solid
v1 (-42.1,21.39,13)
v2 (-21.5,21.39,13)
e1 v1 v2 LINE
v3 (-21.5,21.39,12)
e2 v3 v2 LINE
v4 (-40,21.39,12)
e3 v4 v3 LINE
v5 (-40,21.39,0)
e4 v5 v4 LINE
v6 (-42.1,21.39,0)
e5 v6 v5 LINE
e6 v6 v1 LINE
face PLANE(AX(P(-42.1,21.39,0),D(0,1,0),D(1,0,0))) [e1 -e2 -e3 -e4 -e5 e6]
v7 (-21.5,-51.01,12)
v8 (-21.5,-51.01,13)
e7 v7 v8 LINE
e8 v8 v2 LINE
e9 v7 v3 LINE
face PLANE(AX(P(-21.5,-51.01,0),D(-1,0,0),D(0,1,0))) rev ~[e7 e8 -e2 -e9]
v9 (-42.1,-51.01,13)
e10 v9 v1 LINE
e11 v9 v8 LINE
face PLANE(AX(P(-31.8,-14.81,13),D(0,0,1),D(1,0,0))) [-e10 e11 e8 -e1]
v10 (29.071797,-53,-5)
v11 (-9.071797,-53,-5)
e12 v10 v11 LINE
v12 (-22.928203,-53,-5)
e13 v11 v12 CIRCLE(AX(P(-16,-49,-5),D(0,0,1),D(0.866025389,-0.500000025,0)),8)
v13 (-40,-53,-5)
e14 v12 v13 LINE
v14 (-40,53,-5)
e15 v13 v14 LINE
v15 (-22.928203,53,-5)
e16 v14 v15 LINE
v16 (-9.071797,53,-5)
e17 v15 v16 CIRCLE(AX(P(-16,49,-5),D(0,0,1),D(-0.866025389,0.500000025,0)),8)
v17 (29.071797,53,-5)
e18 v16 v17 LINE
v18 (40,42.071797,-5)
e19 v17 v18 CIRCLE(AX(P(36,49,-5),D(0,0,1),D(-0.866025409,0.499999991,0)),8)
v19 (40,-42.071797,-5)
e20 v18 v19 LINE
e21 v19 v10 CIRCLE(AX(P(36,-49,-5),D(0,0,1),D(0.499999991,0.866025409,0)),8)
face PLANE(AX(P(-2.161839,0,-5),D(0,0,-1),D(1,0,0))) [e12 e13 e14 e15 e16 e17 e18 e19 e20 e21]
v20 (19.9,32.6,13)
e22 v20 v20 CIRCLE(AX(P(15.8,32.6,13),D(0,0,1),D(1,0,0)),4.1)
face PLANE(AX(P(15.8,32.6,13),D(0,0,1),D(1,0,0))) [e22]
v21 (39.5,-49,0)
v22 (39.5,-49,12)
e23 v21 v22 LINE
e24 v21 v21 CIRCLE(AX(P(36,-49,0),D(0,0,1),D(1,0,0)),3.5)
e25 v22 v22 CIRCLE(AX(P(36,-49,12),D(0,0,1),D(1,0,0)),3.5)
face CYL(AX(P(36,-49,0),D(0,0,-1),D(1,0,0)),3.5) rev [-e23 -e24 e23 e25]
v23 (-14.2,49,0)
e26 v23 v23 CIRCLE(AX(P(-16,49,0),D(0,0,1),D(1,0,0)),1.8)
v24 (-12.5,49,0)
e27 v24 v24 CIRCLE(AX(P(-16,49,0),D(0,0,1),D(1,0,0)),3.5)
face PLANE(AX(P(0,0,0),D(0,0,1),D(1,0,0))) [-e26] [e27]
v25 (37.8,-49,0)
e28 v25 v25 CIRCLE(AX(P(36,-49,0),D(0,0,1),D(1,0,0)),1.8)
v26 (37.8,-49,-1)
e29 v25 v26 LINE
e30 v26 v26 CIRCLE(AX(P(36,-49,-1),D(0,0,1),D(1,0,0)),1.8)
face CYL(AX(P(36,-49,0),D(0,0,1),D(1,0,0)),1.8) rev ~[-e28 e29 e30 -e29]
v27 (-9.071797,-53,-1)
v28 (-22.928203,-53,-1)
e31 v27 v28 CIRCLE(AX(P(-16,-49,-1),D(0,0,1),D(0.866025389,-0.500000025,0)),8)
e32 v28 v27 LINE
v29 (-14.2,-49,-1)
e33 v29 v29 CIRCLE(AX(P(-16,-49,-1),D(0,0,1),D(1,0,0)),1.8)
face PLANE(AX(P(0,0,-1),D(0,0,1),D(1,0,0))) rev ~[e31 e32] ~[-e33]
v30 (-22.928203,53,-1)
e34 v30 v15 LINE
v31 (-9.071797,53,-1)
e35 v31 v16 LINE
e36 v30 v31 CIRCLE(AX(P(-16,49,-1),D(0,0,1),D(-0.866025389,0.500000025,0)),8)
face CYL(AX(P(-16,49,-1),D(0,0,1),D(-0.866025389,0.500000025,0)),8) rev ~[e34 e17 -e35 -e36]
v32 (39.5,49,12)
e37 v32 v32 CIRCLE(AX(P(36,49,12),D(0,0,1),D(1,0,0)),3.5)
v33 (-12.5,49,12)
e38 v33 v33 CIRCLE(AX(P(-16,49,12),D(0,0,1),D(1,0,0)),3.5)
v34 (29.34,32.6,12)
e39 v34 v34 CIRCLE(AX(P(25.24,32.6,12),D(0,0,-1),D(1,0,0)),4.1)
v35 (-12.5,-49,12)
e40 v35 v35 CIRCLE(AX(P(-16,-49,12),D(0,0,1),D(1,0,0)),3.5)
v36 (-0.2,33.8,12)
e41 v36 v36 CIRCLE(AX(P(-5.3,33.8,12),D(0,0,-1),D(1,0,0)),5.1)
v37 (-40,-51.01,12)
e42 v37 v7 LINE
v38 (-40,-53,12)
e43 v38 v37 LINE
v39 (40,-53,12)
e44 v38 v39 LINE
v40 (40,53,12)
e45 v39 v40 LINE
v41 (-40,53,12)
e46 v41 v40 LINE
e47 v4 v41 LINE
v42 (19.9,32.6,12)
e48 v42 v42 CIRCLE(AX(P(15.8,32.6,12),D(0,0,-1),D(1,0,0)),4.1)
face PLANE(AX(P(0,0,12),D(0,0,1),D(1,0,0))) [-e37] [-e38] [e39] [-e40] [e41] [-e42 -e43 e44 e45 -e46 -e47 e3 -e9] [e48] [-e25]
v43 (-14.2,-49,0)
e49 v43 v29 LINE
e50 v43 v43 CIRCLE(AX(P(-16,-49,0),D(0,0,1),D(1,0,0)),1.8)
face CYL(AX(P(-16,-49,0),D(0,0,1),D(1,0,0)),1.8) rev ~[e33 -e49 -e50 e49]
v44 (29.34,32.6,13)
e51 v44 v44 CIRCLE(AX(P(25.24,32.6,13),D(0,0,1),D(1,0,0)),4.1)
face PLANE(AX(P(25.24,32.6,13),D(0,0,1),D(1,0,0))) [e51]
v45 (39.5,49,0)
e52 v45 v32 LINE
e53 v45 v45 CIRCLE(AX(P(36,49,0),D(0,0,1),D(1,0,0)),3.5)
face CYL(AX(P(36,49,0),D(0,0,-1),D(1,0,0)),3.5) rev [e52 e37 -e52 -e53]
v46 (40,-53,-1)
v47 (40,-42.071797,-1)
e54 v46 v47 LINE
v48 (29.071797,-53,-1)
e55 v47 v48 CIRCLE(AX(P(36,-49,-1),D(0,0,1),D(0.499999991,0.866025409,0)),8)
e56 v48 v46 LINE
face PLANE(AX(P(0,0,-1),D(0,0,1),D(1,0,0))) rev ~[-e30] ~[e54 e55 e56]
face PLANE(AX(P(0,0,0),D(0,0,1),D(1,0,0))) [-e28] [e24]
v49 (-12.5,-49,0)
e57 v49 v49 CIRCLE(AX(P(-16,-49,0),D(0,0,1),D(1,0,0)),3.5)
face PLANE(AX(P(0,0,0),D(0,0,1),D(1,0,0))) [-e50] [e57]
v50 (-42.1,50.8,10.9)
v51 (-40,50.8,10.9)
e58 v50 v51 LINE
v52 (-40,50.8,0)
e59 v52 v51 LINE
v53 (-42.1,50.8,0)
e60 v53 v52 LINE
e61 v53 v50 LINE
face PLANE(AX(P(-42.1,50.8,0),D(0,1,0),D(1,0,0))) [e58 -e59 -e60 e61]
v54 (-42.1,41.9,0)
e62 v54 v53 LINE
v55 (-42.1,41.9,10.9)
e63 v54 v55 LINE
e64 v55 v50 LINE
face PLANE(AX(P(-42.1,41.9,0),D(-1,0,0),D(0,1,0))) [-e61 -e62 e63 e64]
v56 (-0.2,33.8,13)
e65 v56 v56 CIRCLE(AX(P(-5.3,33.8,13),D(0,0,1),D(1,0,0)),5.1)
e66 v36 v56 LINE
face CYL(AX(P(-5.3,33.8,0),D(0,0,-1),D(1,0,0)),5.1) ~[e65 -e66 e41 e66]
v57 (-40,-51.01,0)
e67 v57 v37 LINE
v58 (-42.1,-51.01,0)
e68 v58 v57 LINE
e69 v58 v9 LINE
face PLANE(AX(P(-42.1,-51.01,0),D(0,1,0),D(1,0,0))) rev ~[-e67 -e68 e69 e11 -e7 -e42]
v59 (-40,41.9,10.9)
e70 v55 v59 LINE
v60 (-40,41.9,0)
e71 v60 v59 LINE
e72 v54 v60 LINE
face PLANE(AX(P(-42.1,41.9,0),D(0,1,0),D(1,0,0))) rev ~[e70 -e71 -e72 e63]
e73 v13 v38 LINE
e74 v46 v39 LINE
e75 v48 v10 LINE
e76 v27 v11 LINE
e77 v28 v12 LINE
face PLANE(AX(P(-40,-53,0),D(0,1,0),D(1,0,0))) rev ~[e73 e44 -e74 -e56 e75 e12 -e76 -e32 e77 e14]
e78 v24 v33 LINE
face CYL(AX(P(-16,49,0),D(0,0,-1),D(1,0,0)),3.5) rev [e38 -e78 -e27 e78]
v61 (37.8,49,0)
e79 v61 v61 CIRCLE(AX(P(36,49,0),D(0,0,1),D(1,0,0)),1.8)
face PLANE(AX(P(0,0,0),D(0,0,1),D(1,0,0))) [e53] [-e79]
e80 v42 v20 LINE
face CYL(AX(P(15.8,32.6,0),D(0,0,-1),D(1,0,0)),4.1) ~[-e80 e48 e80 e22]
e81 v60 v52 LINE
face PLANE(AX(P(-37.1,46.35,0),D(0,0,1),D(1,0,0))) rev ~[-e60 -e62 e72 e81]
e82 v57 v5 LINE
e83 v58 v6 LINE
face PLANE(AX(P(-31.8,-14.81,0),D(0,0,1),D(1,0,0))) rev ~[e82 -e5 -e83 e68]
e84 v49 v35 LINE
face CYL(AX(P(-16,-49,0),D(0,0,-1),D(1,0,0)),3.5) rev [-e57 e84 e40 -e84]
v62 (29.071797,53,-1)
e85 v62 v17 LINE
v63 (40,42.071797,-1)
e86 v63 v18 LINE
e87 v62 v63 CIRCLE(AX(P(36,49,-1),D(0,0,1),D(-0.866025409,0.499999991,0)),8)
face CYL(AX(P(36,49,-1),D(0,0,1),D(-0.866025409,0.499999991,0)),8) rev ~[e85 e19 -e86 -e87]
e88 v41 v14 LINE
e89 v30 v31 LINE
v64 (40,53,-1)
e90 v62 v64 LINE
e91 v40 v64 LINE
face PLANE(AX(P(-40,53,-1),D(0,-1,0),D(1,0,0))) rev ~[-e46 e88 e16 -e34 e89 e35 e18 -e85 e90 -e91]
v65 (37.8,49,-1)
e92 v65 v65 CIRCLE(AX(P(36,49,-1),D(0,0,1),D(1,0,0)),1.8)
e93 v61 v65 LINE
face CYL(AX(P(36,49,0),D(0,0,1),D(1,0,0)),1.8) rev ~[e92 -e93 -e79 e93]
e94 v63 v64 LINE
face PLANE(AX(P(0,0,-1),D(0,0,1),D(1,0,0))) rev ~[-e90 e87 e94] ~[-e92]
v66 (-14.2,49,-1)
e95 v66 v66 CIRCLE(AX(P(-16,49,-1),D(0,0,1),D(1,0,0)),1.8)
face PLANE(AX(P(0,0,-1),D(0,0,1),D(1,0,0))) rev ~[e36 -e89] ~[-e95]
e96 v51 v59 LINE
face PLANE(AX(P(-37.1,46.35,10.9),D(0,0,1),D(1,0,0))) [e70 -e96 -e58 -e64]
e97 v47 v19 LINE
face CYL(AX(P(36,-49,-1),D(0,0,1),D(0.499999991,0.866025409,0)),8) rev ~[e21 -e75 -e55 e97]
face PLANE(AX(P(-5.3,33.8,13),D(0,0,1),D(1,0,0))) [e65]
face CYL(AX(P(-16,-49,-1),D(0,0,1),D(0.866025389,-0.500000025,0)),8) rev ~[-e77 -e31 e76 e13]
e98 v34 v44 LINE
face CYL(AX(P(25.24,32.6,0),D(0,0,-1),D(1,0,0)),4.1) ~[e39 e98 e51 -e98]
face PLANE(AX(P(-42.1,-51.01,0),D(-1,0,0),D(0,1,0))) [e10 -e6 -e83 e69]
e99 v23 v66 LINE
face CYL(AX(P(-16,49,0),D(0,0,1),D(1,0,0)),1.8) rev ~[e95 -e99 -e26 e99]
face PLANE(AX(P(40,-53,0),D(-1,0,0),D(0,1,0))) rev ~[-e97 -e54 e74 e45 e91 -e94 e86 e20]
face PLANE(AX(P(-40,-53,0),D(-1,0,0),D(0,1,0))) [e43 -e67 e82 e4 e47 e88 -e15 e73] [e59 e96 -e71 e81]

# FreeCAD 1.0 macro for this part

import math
import FreeCAD as App
import Part
import Sketcher
from FreeCAD import Vector


def add_polygon(sketch, points):
    """Adds a closed chain of lines whose ends are joined by coincident constraints."""
    first, n = sketch.GeometryCount, len(points)
    for a, b in zip(points, points[1:] + points[:1]):
        sketch.addGeometry(Part.LineSegment(App.Vector(*a, 0), App.Vector(*b, 0)), False)
    for i in range(n):
        sketch.addConstraint(Sketcher.Constraint("Coincident", first + i, 2, first + (i + 1) % n, 1))

doc = App.newDocument("Part")
body = doc.addObject("PartDesign::Body", "Body")

sketch1 = body.newObject("Sketcher::SketchObject", "Sketch")
sketch1.AttachmentSupport = (doc.getObject("XY_Plane"), [""])
sketch1.MapMode = "FlatFace"
add_polygon(sketch1, [(-40, 53), (-40, -53), (40, -53), (40, 53)])
sketch1.addGeometry(Part.Circle(Vector(-16, -49, 0), Vector(0, 0, 1), 1.8), False)
sketch1.addGeometry(Part.Circle(Vector(36, -49, 0), Vector(0, 0, 1), 1.8), False)
sketch1.addGeometry(Part.Circle(Vector(-16, 49, 0), Vector(0, 0, 1), 1.8), False)
sketch1.addGeometry(Part.Circle(Vector(36, 49, 0), Vector(0, 0, 1), 1.8), False)
sketch1.addConstraint([
    Sketcher.Constraint("Vertical", 0),
    Sketcher.Constraint("Horizontal", 1),
    Sketcher.Constraint("Vertical", 2),
    Sketcher.Constraint("Horizontal", 3),
    Sketcher.Constraint("Equal", 4, 5),
    Sketcher.Constraint("Equal", 5, 6),
    Sketcher.Constraint("Equal", 6, 7),
    Sketcher.Constraint("Symmetric", 0, 2, 2, 2, -1, 1),
    Sketcher.Constraint("Symmetric", 4, 3, 6, 3, -1),
    Sketcher.Constraint("Symmetric", 5, 3, 7, 3, -1),
    Sketcher.Constraint("Horizontal", 4, 3, 5, 3),
    Sketcher.Constraint("Diameter", 4, 3.6),
    Sketcher.Constraint("DistanceX", 1, 1, 1, 2, 80.0),
    Sketcher.Constraint("DistanceY", 0, 2, 0, 1, 106.0),
    Sketcher.Constraint("DistanceX", 4, 3, -1, 1, 16.0),
    Sketcher.Constraint("DistanceY", 4, 3, -1, 1, 49.0),
    Sketcher.Constraint("DistanceX", -1, 1, 5, 3, 36.0),
])
pad1 = body.newObject("PartDesign::Pad", "Pad")
pad1.Profile = sketch1
pad1.Length = 1
pad1.Reversed = True

sketch2 = body.newObject("Sketcher::SketchObject", "Sketch001")
sketch2.AttachmentSupport = (doc.getObject("XY_Plane"), [""])
sketch2.MapMode = "FlatFace"
add_polygon(sketch2, [(-42, 21), (-42, -51), (-22, -51), (-22, 21)])
sketch2.addConstraint([
    Sketcher.Constraint("Vertical", 0),
    Sketcher.Constraint("Horizontal", 1),
    Sketcher.Constraint("Vertical", 2),
    Sketcher.Constraint("Horizontal", 3),
    Sketcher.Constraint("DistanceX", 1, 1, 1, 2, 20.6),
    Sketcher.Constraint("DistanceY", 0, 2, 0, 1, 72.4),
    Sketcher.Constraint("DistanceX", 0, 2, -1, 1, 42.1),
    Sketcher.Constraint("DistanceY", 0, 2, -1, 1, 51.01),
])
pad2 = body.newObject("PartDesign::Pad", "Pad001")
pad2.Profile = sketch2
pad2.Length = 13

sketch3 = body.newObject("Sketcher::SketchObject", "Sketch002")
sketch3.AttachmentSupport = (doc.getObject("XY_Plane"), [""])
sketch3.MapMode = "FlatFace"
add_polygon(sketch3, [(-42, 51), (-42, 42), (-32, 42), (-32, 51)])
sketch3.addConstraint([
    Sketcher.Constraint("Vertical", 0),
    Sketcher.Constraint("Horizontal", 1),
    Sketcher.Constraint("Vertical", 2),
    Sketcher.Constraint("Horizontal", 3),
    Sketcher.Constraint("DistanceX", 1, 1, 1, 2, 10.0),
    Sketcher.Constraint("DistanceY", 0, 2, 0, 1, 8.9),
    Sketcher.Constraint("DistanceX", 0, 2, -1, 1, 42.1),
    Sketcher.Constraint("DistanceY", -1, 1, 0, 2, 41.9),
])
pad3 = body.newObject("PartDesign::Pad", "Pad002")
pad3.Profile = sketch3
pad3.Length = 10.9

sketch4 = body.newObject("Sketcher::SketchObject", "Sketch003")
sketch4.AttachmentSupport = (doc.getObject("XY_Plane"), [""])
sketch4.MapMode = "FlatFace"
sketch4.addGeometry([
    Part.Circle(Vector(-5.3, 33.8, 0), Vector(0, 0, 1), 5.1),
    Part.Circle(Vector(15.8, 32.6, 0), Vector(0, 0, 1), 4.1),
    Part.Circle(Vector(25.2, 32.6, 0), Vector(0, 0, 1), 4.1),
], False)
sketch4.addConstraint([
    Sketcher.Constraint("Equal", 1, 2),
    Sketcher.Constraint("Horizontal", 1, 3, 2, 3),
    Sketcher.Constraint("Diameter", 0, 10.2),
    Sketcher.Constraint("Diameter", 1, 8.2),
    Sketcher.Constraint("DistanceX", 0, 3, -1, 1, 5.3),
    Sketcher.Constraint("DistanceY", -1, 1, 0, 3, 33.8),
    Sketcher.Constraint("DistanceX", -1, 1, 1, 3, 15.8),
    Sketcher.Constraint("DistanceY", -1, 1, 1, 3, 32.6),
    Sketcher.Constraint("DistanceX", -1, 1, 2, 3, 25.24),
])
pad4 = body.newObject("PartDesign::Pad", "Pad003")
pad4.Profile = sketch4
pad4.Length = 13

sketch5 = body.newObject("Sketcher::SketchObject", "Sketch004")
sketch5.AttachmentSupport = (doc.getObject("XY_Plane"), [""])
sketch5.MapMode = "FlatFace"
sketch5.AttachmentOffset = App.Placement(Vector(0, 0, -1), App.Rotation())
sketch5.addGeometry([
    Part.LineSegment(Vector(-23, -53, 0), Vector(-40, -53, 0)),
    Part.LineSegment(Vector(-40, -53, 0), Vector(-40, 53, 0)),
    Part.LineSegment(Vector(-40, 53, 0), Vector(-23, 53, 0)),
    Part.ArcOfCircle(Part.Circle(Vector(-16, 49, 0), Vector(0, 0, 1), 8), math.radians(150), math.radians(390)),
    Part.LineSegment(Vector(-9, 53, 0), Vector(29, 53, 0)),
    Part.ArcOfCircle(Part.Circle(Vector(36, 49, 0), Vector(0, 0, 1), 8), math.radians(150), math.radians(300)),
    Part.LineSegment(Vector(40, 42, 0), Vector(40, -42, 0)),
    Part.ArcOfCircle(Part.Circle(Vector(36, -49, 0), Vector(0, 0, 1), 8), math.radians(60), math.radians(210)),
    Part.LineSegment(Vector(29, -53, 0), Vector(-9, -53, 0)),
    Part.ArcOfCircle(Part.Circle(Vector(-16, -49, 0), Vector(0, 0, 1), 8), math.radians(-30), math.radians(210)),
], False)
sketch5.addConstraint([
    Sketcher.Constraint("Coincident", 0, 2, 1, 1),
    Sketcher.Constraint("Coincident", 1, 2, 2, 1),
    Sketcher.Constraint("Coincident", 2, 2, 3, 1),
    Sketcher.Constraint("Coincident", 3, 2, 4, 1),
    Sketcher.Constraint("Coincident", 4, 2, 5, 1),
    Sketcher.Constraint("Coincident", 5, 2, 6, 1),
    Sketcher.Constraint("Coincident", 6, 2, 7, 1),
    Sketcher.Constraint("Coincident", 7, 2, 8, 1),
    Sketcher.Constraint("Coincident", 8, 2, 9, 1),
    Sketcher.Constraint("Coincident", 9, 2, 0, 1),
    Sketcher.Constraint("Horizontal", 0),
    Sketcher.Constraint("Vertical", 1),
    Sketcher.Constraint("Horizontal", 2),
    Sketcher.Constraint("Horizontal", 4),
    Sketcher.Constraint("Vertical", 6),
    Sketcher.Constraint("Horizontal", 8),
    Sketcher.Constraint("Equal", 3, 5),
    Sketcher.Constraint("Equal", 5, 7),
    Sketcher.Constraint("Equal", 7, 9),
    Sketcher.Constraint("Symmetric", 5, 3, 7, 3, -1),
    Sketcher.Constraint("Symmetric", 3, 3, 9, 3, -1),
    Sketcher.Constraint("Horizontal", 3, 3, 5, 3),
    Sketcher.Constraint("Horizontal", 2, 2, 3, 2),
    Sketcher.Constraint("Horizontal", 0, 2, 7, 2),
    Sketcher.Constraint("Vertical", 4, 2, 7, 2),
    Sketcher.Constraint("Radius", 3, 8.0),
    Sketcher.Constraint("DistanceY", 1, 1, 1, 2, 106.0),
    Sketcher.Constraint("DistanceX", 3, 3, -1, 1, 16.0),
    Sketcher.Constraint("DistanceY", -1, 1, 3, 3, 49.0),
    Sketcher.Constraint("DistanceX", -1, 1, 5, 3, 36.0),
    Sketcher.Constraint("DistanceX", 0, 2, -1, 1, 40.0),
    Sketcher.Constraint("DistanceX", -1, 1, 5, 2, 40.0),
])
pad5 = body.newObject("PartDesign::Pad", "Pad004")
pad5.Profile = sketch5
pad5.Length = 4
pad5.Reversed = True

sketch6 = body.newObject("Sketcher::SketchObject", "Sketch005")
sketch6.AttachmentSupport = (doc.getObject("XY_Plane"), [""])
sketch6.MapMode = "FlatFace"
add_polygon(sketch6, [(-40, 53), (-40, -53), (40, -53), (40, 53)])
sketch6.addGeometry(Part.Circle(Vector(-16, -49, 0), Vector(0, 0, 1), 3.5), False)
sketch6.addGeometry(Part.Circle(Vector(36, -49, 0), Vector(0, 0, 1), 3.5), False)
sketch6.addGeometry(Part.Circle(Vector(-16, 49, 0), Vector(0, 0, 1), 3.5), False)
sketch6.addGeometry(Part.Circle(Vector(36, 49, 0), Vector(0, 0, 1), 3.5), False)
sketch6.addConstraint([
    Sketcher.Constraint("Vertical", 0),
    Sketcher.Constraint("Horizontal", 1),
    Sketcher.Constraint("Vertical", 2),
    Sketcher.Constraint("Horizontal", 3),
    Sketcher.Constraint("Equal", 4, 5),
    Sketcher.Constraint("Equal", 5, 6),
    Sketcher.Constraint("Equal", 6, 7),
    Sketcher.Constraint("Symmetric", 0, 2, 2, 2, -1, 1),
    Sketcher.Constraint("Symmetric", 4, 3, 6, 3, -1),
    Sketcher.Constraint("Symmetric", 5, 3, 7, 3, -1),
    Sketcher.Constraint("Horizontal", 4, 3, 5, 3),
    Sketcher.Constraint("Diameter", 4, 7.0),
    Sketcher.Constraint("DistanceX", 1, 1, 1, 2, 80.0),
    Sketcher.Constraint("DistanceY", 0, 2, 0, 1, 106.0),
    Sketcher.Constraint("DistanceX", 4, 3, -1, 1, 16.0),
    Sketcher.Constraint("DistanceY", 4, 3, -1, 1, 49.0),
    Sketcher.Constraint("DistanceX", -1, 1, 5, 3, 36.0),
])
pad6 = body.newObject("PartDesign::Pad", "Pad005")
pad6.Profile = sketch6
pad6.Length = 12

doc.recompute()
